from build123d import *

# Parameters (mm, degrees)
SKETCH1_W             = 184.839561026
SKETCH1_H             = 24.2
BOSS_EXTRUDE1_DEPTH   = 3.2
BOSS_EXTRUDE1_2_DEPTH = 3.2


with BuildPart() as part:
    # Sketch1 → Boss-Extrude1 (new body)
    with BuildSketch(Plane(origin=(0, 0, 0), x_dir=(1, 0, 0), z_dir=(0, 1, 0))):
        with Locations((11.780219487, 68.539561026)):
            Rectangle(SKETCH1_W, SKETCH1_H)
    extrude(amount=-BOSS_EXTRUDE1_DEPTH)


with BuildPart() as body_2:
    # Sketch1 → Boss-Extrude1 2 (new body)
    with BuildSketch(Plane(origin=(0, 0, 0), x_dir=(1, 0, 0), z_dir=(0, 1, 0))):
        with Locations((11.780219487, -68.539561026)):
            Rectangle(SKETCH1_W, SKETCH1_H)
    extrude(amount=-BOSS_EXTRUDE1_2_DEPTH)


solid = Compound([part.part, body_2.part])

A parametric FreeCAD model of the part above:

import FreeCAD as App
import Part
import Sketcher
Q = App.Units.Quantity


def add_polygon(sketch, points):
    """Adds a closed chain of lines whose ends are joined by coincident constraints."""
    first, n = sketch.GeometryCount, len(points)
    for a, b in zip(points, points[1:] + points[:1]):
        sketch.addGeometry(Part.LineSegment(App.Vector(*a, 0), App.Vector(*b, 0)), False)
    for i in range(n):
        sketch.addConstraint(Sketcher.Constraint("Coincident", first + i, 2, first + (i + 1) % n, 1))

doc = App.newDocument("Part")
body = doc.addObject("PartDesign::Body", "Body")

# Sketch on XZ plane
sketch1 = body.newObject("Sketcher::SketchObject", "Sketch")
sketch1.AttachmentSupport = (doc.getObject("XZ_Plane"), [""])
sketch1.MapMode = "FlatFace"
add_polygon(sketch1, [(-81, -81), (-81, -56), (104, -56), (104, -81)])  # lines 0-3
sketch1.addConstraint(Sketcher.Constraint("Vertical", 0))
sketch1.addConstraint(Sketcher.Constraint("Horizontal", 1))
sketch1.addConstraint(Sketcher.Constraint("Vertical", 2))
sketch1.addConstraint(Sketcher.Constraint("Horizontal", 3))
sketch1.addConstraint(Sketcher.Constraint("DistanceY", 0, 1, 0, 2, Q("24.2 mm")))
sketch1.addConstraint(Sketcher.Constraint("DistanceX", -1, 1, 1, 2, Q("104.2 mm")))
sketch1.addConstraint(Sketcher.Constraint("DistanceX", 1, 1, 1, 2, Q("184.839561 mm")))
sketch1.addConstraint(Sketcher.Constraint("DistanceY", 0, 2, -1, 1, Q("56.439561 mm")))
pad1 = body.newObject("PartDesign::Pad", "Pad")
pad1.Profile = sketch1
pad1.Length = 3.2
body2 = doc.addObject("PartDesign::Body", "Body001")

# Sketch on XZ plane
sketch2 = body2.newObject("Sketcher::SketchObject", "Sketch001")
sketch2.AttachmentSupport = (doc.getObject("XZ_Plane001"), [""])
sketch2.MapMode = "FlatFace"
add_polygon(sketch2, [(-81, 56), (-81, 81), (104, 81), (104, 56)])  # lines 0-3
sketch2.addConstraint(Sketcher.Constraint("Vertical", 0))
sketch2.addConstraint(Sketcher.Constraint("Horizontal", 1))
sketch2.addConstraint(Sketcher.Constraint("Vertical", 2))
sketch2.addConstraint(Sketcher.Constraint("Horizontal", 3))
sketch2.addConstraint(Sketcher.Constraint("DistanceY", 0, 1, 0, 2, Q("24.2 mm")))
sketch2.addConstraint(Sketcher.Constraint("DistanceX", -1, 1, 1, 2, Q("104.2 mm")))
sketch2.addConstraint(Sketcher.Constraint("DistanceX", 1, 1, 1, 2, Q("184.839561 mm")))
sketch2.addConstraint(Sketcher.Constraint("DistanceY", -1, 1, 0, 2, Q("80.639561 mm")))
pad2 = body2.newObject("PartDesign::Pad", "Pad001")
pad2.Profile = sketch2
pad2.Length = 3.2

doc.recompute()
